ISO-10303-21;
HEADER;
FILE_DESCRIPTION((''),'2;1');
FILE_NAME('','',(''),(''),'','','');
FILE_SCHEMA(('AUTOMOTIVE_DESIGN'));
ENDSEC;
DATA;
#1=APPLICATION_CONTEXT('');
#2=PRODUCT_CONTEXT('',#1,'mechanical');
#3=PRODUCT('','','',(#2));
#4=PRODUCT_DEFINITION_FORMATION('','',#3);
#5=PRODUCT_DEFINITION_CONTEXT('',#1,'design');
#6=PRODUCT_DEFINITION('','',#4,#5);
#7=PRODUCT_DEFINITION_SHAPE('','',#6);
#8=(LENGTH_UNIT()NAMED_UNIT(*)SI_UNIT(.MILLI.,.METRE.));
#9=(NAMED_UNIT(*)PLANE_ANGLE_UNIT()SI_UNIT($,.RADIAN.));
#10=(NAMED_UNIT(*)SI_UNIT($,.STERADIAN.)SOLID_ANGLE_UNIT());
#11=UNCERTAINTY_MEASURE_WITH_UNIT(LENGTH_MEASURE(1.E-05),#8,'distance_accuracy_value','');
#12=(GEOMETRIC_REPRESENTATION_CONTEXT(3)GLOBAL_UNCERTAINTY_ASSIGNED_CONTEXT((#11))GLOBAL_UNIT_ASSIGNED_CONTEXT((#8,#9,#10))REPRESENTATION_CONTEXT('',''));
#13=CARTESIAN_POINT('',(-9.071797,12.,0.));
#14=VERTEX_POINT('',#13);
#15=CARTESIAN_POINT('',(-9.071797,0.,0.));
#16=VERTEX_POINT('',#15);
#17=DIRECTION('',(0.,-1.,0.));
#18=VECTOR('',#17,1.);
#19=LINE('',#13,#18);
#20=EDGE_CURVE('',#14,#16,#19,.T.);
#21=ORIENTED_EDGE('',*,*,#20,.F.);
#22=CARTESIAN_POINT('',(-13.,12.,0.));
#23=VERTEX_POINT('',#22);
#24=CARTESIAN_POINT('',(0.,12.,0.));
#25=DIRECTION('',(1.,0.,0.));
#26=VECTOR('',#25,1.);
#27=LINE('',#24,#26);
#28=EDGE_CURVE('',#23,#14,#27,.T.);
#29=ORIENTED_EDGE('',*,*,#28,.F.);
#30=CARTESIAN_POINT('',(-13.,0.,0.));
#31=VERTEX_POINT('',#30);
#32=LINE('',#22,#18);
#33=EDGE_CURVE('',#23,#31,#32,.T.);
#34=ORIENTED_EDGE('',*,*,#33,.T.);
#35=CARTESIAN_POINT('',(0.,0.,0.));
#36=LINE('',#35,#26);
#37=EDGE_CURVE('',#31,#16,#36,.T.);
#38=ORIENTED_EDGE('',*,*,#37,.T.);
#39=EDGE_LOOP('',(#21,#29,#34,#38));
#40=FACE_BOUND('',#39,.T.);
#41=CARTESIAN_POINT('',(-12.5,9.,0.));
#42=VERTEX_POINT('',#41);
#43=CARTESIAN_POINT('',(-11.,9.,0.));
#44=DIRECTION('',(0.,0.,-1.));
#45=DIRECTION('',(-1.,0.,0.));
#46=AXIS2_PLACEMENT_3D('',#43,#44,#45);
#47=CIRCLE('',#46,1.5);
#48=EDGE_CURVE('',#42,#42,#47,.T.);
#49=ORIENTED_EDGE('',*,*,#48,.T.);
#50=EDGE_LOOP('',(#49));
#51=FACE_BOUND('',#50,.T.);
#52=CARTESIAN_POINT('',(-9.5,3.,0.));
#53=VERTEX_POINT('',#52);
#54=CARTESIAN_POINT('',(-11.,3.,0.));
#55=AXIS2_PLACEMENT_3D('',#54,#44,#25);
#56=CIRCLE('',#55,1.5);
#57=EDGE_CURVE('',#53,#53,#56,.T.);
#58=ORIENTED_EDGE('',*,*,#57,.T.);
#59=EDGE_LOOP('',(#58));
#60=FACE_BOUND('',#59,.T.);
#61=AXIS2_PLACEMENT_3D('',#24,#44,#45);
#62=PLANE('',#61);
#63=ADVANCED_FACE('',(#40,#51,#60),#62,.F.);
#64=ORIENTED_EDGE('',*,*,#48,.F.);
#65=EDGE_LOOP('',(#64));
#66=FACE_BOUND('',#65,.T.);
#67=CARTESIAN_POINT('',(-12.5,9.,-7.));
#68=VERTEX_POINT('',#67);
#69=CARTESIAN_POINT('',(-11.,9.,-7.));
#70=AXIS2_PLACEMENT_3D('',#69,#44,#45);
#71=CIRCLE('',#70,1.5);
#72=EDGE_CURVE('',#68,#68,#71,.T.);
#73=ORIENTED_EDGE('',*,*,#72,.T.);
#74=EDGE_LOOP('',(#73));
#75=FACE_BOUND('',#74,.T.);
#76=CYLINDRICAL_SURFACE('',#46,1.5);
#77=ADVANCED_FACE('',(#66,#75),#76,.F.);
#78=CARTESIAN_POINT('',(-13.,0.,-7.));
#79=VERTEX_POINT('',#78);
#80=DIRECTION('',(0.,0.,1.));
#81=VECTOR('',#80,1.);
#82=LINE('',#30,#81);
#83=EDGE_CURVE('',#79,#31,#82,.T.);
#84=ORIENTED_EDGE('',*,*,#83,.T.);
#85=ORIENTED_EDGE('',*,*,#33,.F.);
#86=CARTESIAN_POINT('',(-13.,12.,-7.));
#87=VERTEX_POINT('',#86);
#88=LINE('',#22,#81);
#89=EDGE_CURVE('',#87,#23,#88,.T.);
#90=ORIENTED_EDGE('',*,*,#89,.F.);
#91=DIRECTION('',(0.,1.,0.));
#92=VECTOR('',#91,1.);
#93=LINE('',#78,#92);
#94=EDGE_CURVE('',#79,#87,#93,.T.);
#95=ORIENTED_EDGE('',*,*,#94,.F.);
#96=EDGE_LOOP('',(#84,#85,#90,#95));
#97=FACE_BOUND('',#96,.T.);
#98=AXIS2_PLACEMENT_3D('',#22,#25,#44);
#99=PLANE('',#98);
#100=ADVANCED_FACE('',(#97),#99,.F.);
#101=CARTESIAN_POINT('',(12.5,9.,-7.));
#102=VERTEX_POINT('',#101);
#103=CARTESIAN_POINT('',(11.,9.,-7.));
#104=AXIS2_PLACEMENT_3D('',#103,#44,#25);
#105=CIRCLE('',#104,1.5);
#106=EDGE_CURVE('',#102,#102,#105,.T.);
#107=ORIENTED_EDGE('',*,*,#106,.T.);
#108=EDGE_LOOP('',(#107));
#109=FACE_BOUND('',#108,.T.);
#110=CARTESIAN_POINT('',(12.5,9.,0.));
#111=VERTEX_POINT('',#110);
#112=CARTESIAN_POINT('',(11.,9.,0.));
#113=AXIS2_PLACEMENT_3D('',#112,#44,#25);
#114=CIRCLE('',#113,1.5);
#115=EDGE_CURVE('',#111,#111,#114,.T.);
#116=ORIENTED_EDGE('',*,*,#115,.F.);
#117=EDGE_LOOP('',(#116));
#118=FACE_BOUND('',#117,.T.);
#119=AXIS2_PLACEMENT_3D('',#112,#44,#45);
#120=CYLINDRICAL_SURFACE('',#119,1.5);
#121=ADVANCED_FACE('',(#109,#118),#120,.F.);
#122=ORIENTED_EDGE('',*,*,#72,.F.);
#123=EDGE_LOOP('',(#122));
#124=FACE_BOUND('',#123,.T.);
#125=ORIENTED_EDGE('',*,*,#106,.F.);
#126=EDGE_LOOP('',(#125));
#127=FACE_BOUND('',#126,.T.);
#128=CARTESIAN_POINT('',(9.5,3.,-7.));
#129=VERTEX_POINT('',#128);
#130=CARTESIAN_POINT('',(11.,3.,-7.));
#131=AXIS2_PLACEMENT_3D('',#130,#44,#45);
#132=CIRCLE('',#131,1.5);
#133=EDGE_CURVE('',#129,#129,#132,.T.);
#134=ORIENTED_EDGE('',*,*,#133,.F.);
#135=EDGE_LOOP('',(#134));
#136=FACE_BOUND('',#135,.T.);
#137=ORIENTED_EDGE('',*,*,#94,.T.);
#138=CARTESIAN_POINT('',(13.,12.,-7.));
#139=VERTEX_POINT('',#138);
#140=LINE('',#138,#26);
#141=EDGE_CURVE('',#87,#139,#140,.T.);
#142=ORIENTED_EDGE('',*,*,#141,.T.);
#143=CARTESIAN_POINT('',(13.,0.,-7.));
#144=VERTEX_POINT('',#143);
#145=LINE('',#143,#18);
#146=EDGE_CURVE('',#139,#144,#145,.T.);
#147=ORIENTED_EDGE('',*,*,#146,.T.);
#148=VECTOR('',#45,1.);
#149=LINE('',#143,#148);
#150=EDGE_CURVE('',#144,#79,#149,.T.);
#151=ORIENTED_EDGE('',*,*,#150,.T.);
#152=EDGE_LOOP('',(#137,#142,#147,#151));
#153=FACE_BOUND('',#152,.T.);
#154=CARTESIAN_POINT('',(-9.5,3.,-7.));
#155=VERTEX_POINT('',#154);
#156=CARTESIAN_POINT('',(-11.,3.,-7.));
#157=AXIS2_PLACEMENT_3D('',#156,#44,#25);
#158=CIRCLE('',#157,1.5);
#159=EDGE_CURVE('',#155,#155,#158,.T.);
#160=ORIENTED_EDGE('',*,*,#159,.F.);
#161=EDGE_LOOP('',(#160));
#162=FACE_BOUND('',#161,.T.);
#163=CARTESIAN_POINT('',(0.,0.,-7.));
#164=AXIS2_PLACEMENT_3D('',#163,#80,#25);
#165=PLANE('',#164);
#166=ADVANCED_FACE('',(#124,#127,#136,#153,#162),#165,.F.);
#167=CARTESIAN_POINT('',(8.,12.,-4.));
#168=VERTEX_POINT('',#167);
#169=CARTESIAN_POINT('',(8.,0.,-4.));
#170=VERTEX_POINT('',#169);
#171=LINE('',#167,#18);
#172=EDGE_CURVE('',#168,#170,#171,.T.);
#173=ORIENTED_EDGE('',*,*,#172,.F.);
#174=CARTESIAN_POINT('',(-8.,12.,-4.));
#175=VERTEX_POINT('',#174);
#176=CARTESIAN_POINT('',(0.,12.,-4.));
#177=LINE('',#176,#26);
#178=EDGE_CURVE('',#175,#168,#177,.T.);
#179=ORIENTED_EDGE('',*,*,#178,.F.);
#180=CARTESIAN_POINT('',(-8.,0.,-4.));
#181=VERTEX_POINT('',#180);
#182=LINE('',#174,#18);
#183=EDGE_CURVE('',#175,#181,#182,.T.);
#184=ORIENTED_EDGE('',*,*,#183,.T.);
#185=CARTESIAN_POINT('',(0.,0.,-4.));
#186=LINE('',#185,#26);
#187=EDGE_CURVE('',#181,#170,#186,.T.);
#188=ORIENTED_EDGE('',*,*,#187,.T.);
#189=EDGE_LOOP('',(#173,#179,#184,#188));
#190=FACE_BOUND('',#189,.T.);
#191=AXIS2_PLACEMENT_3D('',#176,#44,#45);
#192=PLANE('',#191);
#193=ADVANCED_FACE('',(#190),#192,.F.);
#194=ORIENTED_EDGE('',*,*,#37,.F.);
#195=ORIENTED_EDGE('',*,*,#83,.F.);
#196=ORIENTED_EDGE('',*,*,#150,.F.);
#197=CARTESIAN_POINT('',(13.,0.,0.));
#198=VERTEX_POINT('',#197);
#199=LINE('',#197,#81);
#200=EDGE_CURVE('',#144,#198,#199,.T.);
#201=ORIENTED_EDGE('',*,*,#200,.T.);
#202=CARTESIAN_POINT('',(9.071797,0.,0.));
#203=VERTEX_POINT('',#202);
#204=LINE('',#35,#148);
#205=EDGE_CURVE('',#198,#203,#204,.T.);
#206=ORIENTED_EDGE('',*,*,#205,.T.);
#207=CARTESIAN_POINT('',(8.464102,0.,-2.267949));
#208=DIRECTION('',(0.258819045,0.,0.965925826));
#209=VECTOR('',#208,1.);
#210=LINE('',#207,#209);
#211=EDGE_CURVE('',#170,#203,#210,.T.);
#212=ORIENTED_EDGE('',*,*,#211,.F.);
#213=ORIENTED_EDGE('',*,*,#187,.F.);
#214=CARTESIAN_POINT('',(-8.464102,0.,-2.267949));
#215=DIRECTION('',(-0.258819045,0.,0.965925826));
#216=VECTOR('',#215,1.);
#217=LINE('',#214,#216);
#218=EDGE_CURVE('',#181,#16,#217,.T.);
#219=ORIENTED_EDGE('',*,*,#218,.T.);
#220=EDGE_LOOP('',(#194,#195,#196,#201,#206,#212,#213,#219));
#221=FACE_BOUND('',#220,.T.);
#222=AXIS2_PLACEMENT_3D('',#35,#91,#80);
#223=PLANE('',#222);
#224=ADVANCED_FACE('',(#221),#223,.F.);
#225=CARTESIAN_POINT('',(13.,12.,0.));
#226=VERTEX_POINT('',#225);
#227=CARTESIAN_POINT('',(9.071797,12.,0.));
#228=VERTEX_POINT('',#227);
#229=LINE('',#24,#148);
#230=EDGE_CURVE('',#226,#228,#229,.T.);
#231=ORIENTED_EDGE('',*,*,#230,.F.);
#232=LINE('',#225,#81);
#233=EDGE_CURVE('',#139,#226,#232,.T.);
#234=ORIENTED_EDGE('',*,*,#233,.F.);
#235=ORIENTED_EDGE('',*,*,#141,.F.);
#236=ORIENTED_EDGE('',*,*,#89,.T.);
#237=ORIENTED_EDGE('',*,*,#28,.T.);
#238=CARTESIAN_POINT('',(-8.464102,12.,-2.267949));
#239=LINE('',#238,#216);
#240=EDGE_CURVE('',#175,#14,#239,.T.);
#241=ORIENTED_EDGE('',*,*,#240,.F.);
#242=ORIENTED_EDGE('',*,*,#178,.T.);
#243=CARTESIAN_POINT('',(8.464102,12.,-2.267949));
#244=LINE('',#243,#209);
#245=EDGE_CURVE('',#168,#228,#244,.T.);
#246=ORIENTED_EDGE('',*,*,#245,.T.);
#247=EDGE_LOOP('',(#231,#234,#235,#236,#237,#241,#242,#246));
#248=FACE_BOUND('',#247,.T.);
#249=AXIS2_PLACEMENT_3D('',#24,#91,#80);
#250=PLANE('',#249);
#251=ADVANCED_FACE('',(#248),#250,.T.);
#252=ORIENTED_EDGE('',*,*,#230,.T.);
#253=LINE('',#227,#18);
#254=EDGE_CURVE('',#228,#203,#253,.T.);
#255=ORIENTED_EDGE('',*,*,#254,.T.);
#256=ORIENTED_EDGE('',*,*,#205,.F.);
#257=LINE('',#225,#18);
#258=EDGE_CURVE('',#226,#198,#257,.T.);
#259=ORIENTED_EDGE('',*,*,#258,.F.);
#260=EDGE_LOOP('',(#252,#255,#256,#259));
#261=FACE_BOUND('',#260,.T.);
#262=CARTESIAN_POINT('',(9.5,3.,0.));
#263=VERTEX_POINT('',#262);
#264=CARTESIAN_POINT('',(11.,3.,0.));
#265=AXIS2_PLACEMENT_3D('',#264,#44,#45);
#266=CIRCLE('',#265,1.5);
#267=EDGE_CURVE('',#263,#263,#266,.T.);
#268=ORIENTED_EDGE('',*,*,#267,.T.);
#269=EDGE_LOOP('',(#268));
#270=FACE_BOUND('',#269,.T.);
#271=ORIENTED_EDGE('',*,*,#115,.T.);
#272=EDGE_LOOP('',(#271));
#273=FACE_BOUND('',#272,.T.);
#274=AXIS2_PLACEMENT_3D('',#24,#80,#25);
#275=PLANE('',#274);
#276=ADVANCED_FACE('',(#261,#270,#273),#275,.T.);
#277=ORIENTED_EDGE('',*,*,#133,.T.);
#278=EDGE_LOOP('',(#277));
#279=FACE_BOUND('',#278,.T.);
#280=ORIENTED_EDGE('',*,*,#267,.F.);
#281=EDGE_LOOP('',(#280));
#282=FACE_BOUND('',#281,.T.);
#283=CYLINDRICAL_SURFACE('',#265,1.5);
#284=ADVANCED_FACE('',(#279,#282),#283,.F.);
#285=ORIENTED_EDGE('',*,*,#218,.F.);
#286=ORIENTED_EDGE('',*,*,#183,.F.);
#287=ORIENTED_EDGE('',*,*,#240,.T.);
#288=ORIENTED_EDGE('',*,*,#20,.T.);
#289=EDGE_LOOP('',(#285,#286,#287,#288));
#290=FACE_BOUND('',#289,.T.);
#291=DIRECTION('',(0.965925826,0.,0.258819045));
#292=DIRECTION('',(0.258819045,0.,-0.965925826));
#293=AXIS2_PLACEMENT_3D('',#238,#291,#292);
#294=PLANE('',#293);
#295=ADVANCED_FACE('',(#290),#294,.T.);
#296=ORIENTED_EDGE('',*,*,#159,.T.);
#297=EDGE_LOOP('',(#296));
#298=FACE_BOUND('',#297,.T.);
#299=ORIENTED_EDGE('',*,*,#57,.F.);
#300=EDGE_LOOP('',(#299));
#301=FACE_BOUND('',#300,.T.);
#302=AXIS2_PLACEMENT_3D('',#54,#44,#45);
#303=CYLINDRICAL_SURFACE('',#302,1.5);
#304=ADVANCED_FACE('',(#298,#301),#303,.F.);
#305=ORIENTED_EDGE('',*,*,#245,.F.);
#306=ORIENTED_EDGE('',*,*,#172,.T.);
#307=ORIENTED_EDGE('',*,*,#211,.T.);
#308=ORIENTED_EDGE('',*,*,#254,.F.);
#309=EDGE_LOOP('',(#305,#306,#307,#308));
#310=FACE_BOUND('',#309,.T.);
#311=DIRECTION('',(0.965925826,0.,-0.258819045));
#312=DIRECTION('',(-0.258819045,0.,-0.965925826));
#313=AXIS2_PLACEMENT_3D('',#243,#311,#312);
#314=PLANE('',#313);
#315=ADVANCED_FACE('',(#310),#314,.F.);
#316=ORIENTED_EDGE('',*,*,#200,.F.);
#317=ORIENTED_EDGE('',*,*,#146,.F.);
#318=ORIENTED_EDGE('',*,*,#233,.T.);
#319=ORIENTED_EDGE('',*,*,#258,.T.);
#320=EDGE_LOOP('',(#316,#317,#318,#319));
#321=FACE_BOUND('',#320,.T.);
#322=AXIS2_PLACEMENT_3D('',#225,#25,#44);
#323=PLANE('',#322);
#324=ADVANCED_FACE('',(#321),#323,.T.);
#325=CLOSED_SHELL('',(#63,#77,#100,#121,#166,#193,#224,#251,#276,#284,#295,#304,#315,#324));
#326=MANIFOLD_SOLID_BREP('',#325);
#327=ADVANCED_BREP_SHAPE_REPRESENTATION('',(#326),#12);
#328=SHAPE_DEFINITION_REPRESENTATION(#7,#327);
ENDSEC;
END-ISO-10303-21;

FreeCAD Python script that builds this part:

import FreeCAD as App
import Part
import Sketcher
from FreeCAD import Vector
Q = App.Units.Quantity


def add_polygon(sketch, points):
    """Adds a closed chain of lines whose ends are joined by coincident constraints."""
    first, n = sketch.GeometryCount, len(points)
    for a, b in zip(points, points[1:] + points[:1]):
        sketch.addGeometry(Part.LineSegment(App.Vector(*a, 0), App.Vector(*b, 0)), False)
    for i in range(n):
        sketch.addConstraint(Sketcher.Constraint("Coincident", first + i, 2, first + (i + 1) % n, 1))

doc = App.newDocument("Part")
body = doc.addObject("PartDesign::Body", "Body")

# Sketch on XZ plane
sketch1 = body.newObject("Sketcher::SketchObject", "Sketch")
sketch1.AttachmentSupport = (doc.getObject("XZ_Plane"), [""])
sketch1.MapMode = "FlatFace"
add_polygon(sketch1, [(-13, 0), (-9.071797, 0), (-8, -4), (8, -4), (9.071797, 0), (13, 0), (13, -9), (-13, -9)])  # lines 0-7
sketch1.addConstraint([
    Sketcher.Constraint("Horizontal", 0),
    Sketcher.Constraint("Horizontal", 2),
    Sketcher.Constraint("Horizontal", 4),
    Sketcher.Constraint("Vertical", 5),
    Sketcher.Constraint("Horizontal", 6),
    Sketcher.Constraint("Vertical", 7),
    Sketcher.Constraint("Symmetric", 0, 2, 3, 2, -1, 1),
    Sketcher.Constraint("Symmetric", 4, 2, 7, 2, -2),
    Sketcher.Constraint("Equal", 1, 3),
    Sketcher.Constraint("DistanceX", 2, 1, 2, 2, Q("16 mm")),
    Sketcher.Constraint("DistanceX", 6, 2, 6, 1, Q("26 mm")),
    Sketcher.Constraint("DistanceY", 5, 2, 5, 1, Q("9 mm")),
    Sketcher.Constraint("Angle", 1, Q("-75 deg")),
    Sketcher.Constraint("DistanceY", 1, 2, -1, 1, Q("4 mm")),
])
pad1 = body.newObject("PartDesign::Pad", "Pad")
pad1.Profile = sketch1
pad1.Length = 12
pad1.Reversed = True

# Sketch on XY plane
sketch2 = body.newObject("Sketcher::SketchObject", "Sketch001")
sketch2.AttachmentSupport = (doc.getObject("XY_Plane"), [""])
sketch2.MapMode = "FlatFace"
sketch2.AttachmentOffset = App.Placement(Vector(0, 0, -9), App.Rotation())
add_polygon(sketch2, [(13, 12), (13, 0), (-13, 0), (-13, 12)])  # lines 0-3
sketch2.addConstraint([
    Sketcher.Constraint("Vertical", 0),
    Sketcher.Constraint("Horizontal", 1),
    Sketcher.Constraint("Vertical", 2),
    Sketcher.Constraint("Horizontal", 3),
    Sketcher.Constraint("Symmetric", 0, 2, 1, 2, -1, 1),
    Sketcher.Constraint("DistanceX", 1, 2, 1, 1, Q("26 mm")),
    Sketcher.Constraint("DistanceY", 0, 2, 0, 1, Q("12 mm")),
])
pocket1 = body.newObject("PartDesign::Pocket", "Pocket")
pocket1.Profile = sketch2
pocket1.Length = 2
pocket1.Reversed = True

# Sketch on XY plane
sketch3 = body.newObject("Sketcher::SketchObject", "Sketch002")
sketch3.AttachmentSupport = (doc.getObject("XY_Plane"), [""])
sketch3.MapMode = "FlatFace"
sketch3.AttachmentOffset = App.Placement(Vector(0, 0, -7), App.Rotation())
sketch3.addGeometry([
    Part.Circle(Vector(11, 3, 0), Vector(0, 0, 1), 1.5),
    Part.Circle(Vector(-11, 3, 0), Vector(0, 0, 1), 1.5),
    Part.Circle(Vector(-11, 9, 0), Vector(0, 0, 1), 1.5),
    Part.Circle(Vector(11, 9, 0), Vector(0, 0, 1), 1.5),
], False)
sketch3.addConstraint([
    Sketcher.Constraint("Equal", 0, 1),
    Sketcher.Constraint("Equal", 1, 2),
    Sketcher.Constraint("Equal", 2, 3),
    Sketcher.Constraint("Symmetric", 0, 3, 1, 3, -2),
    Sketcher.Constraint("Symmetric", 2, 3, 3, 3, -2),
    Sketcher.Constraint("Vertical", 1, 3, 2, 3),
    Sketcher.Constraint("Diameter", 0, Q("3 mm")),
    Sketcher.Constraint("DistanceX", -1, 1, 0, 3, Q("11 mm")),
    Sketcher.Constraint("DistanceY", -1, 1, 0, 3, Q("3 mm")),
    Sketcher.Constraint("DistanceY", -1, 1, 2, 3, Q("9 mm")),
])
pocket2 = body.newObject("PartDesign::Pocket", "Pocket001")
pocket2.Profile = sketch3
pocket2.Length = 7
pocket2.Reversed = True

doc.recompute()
